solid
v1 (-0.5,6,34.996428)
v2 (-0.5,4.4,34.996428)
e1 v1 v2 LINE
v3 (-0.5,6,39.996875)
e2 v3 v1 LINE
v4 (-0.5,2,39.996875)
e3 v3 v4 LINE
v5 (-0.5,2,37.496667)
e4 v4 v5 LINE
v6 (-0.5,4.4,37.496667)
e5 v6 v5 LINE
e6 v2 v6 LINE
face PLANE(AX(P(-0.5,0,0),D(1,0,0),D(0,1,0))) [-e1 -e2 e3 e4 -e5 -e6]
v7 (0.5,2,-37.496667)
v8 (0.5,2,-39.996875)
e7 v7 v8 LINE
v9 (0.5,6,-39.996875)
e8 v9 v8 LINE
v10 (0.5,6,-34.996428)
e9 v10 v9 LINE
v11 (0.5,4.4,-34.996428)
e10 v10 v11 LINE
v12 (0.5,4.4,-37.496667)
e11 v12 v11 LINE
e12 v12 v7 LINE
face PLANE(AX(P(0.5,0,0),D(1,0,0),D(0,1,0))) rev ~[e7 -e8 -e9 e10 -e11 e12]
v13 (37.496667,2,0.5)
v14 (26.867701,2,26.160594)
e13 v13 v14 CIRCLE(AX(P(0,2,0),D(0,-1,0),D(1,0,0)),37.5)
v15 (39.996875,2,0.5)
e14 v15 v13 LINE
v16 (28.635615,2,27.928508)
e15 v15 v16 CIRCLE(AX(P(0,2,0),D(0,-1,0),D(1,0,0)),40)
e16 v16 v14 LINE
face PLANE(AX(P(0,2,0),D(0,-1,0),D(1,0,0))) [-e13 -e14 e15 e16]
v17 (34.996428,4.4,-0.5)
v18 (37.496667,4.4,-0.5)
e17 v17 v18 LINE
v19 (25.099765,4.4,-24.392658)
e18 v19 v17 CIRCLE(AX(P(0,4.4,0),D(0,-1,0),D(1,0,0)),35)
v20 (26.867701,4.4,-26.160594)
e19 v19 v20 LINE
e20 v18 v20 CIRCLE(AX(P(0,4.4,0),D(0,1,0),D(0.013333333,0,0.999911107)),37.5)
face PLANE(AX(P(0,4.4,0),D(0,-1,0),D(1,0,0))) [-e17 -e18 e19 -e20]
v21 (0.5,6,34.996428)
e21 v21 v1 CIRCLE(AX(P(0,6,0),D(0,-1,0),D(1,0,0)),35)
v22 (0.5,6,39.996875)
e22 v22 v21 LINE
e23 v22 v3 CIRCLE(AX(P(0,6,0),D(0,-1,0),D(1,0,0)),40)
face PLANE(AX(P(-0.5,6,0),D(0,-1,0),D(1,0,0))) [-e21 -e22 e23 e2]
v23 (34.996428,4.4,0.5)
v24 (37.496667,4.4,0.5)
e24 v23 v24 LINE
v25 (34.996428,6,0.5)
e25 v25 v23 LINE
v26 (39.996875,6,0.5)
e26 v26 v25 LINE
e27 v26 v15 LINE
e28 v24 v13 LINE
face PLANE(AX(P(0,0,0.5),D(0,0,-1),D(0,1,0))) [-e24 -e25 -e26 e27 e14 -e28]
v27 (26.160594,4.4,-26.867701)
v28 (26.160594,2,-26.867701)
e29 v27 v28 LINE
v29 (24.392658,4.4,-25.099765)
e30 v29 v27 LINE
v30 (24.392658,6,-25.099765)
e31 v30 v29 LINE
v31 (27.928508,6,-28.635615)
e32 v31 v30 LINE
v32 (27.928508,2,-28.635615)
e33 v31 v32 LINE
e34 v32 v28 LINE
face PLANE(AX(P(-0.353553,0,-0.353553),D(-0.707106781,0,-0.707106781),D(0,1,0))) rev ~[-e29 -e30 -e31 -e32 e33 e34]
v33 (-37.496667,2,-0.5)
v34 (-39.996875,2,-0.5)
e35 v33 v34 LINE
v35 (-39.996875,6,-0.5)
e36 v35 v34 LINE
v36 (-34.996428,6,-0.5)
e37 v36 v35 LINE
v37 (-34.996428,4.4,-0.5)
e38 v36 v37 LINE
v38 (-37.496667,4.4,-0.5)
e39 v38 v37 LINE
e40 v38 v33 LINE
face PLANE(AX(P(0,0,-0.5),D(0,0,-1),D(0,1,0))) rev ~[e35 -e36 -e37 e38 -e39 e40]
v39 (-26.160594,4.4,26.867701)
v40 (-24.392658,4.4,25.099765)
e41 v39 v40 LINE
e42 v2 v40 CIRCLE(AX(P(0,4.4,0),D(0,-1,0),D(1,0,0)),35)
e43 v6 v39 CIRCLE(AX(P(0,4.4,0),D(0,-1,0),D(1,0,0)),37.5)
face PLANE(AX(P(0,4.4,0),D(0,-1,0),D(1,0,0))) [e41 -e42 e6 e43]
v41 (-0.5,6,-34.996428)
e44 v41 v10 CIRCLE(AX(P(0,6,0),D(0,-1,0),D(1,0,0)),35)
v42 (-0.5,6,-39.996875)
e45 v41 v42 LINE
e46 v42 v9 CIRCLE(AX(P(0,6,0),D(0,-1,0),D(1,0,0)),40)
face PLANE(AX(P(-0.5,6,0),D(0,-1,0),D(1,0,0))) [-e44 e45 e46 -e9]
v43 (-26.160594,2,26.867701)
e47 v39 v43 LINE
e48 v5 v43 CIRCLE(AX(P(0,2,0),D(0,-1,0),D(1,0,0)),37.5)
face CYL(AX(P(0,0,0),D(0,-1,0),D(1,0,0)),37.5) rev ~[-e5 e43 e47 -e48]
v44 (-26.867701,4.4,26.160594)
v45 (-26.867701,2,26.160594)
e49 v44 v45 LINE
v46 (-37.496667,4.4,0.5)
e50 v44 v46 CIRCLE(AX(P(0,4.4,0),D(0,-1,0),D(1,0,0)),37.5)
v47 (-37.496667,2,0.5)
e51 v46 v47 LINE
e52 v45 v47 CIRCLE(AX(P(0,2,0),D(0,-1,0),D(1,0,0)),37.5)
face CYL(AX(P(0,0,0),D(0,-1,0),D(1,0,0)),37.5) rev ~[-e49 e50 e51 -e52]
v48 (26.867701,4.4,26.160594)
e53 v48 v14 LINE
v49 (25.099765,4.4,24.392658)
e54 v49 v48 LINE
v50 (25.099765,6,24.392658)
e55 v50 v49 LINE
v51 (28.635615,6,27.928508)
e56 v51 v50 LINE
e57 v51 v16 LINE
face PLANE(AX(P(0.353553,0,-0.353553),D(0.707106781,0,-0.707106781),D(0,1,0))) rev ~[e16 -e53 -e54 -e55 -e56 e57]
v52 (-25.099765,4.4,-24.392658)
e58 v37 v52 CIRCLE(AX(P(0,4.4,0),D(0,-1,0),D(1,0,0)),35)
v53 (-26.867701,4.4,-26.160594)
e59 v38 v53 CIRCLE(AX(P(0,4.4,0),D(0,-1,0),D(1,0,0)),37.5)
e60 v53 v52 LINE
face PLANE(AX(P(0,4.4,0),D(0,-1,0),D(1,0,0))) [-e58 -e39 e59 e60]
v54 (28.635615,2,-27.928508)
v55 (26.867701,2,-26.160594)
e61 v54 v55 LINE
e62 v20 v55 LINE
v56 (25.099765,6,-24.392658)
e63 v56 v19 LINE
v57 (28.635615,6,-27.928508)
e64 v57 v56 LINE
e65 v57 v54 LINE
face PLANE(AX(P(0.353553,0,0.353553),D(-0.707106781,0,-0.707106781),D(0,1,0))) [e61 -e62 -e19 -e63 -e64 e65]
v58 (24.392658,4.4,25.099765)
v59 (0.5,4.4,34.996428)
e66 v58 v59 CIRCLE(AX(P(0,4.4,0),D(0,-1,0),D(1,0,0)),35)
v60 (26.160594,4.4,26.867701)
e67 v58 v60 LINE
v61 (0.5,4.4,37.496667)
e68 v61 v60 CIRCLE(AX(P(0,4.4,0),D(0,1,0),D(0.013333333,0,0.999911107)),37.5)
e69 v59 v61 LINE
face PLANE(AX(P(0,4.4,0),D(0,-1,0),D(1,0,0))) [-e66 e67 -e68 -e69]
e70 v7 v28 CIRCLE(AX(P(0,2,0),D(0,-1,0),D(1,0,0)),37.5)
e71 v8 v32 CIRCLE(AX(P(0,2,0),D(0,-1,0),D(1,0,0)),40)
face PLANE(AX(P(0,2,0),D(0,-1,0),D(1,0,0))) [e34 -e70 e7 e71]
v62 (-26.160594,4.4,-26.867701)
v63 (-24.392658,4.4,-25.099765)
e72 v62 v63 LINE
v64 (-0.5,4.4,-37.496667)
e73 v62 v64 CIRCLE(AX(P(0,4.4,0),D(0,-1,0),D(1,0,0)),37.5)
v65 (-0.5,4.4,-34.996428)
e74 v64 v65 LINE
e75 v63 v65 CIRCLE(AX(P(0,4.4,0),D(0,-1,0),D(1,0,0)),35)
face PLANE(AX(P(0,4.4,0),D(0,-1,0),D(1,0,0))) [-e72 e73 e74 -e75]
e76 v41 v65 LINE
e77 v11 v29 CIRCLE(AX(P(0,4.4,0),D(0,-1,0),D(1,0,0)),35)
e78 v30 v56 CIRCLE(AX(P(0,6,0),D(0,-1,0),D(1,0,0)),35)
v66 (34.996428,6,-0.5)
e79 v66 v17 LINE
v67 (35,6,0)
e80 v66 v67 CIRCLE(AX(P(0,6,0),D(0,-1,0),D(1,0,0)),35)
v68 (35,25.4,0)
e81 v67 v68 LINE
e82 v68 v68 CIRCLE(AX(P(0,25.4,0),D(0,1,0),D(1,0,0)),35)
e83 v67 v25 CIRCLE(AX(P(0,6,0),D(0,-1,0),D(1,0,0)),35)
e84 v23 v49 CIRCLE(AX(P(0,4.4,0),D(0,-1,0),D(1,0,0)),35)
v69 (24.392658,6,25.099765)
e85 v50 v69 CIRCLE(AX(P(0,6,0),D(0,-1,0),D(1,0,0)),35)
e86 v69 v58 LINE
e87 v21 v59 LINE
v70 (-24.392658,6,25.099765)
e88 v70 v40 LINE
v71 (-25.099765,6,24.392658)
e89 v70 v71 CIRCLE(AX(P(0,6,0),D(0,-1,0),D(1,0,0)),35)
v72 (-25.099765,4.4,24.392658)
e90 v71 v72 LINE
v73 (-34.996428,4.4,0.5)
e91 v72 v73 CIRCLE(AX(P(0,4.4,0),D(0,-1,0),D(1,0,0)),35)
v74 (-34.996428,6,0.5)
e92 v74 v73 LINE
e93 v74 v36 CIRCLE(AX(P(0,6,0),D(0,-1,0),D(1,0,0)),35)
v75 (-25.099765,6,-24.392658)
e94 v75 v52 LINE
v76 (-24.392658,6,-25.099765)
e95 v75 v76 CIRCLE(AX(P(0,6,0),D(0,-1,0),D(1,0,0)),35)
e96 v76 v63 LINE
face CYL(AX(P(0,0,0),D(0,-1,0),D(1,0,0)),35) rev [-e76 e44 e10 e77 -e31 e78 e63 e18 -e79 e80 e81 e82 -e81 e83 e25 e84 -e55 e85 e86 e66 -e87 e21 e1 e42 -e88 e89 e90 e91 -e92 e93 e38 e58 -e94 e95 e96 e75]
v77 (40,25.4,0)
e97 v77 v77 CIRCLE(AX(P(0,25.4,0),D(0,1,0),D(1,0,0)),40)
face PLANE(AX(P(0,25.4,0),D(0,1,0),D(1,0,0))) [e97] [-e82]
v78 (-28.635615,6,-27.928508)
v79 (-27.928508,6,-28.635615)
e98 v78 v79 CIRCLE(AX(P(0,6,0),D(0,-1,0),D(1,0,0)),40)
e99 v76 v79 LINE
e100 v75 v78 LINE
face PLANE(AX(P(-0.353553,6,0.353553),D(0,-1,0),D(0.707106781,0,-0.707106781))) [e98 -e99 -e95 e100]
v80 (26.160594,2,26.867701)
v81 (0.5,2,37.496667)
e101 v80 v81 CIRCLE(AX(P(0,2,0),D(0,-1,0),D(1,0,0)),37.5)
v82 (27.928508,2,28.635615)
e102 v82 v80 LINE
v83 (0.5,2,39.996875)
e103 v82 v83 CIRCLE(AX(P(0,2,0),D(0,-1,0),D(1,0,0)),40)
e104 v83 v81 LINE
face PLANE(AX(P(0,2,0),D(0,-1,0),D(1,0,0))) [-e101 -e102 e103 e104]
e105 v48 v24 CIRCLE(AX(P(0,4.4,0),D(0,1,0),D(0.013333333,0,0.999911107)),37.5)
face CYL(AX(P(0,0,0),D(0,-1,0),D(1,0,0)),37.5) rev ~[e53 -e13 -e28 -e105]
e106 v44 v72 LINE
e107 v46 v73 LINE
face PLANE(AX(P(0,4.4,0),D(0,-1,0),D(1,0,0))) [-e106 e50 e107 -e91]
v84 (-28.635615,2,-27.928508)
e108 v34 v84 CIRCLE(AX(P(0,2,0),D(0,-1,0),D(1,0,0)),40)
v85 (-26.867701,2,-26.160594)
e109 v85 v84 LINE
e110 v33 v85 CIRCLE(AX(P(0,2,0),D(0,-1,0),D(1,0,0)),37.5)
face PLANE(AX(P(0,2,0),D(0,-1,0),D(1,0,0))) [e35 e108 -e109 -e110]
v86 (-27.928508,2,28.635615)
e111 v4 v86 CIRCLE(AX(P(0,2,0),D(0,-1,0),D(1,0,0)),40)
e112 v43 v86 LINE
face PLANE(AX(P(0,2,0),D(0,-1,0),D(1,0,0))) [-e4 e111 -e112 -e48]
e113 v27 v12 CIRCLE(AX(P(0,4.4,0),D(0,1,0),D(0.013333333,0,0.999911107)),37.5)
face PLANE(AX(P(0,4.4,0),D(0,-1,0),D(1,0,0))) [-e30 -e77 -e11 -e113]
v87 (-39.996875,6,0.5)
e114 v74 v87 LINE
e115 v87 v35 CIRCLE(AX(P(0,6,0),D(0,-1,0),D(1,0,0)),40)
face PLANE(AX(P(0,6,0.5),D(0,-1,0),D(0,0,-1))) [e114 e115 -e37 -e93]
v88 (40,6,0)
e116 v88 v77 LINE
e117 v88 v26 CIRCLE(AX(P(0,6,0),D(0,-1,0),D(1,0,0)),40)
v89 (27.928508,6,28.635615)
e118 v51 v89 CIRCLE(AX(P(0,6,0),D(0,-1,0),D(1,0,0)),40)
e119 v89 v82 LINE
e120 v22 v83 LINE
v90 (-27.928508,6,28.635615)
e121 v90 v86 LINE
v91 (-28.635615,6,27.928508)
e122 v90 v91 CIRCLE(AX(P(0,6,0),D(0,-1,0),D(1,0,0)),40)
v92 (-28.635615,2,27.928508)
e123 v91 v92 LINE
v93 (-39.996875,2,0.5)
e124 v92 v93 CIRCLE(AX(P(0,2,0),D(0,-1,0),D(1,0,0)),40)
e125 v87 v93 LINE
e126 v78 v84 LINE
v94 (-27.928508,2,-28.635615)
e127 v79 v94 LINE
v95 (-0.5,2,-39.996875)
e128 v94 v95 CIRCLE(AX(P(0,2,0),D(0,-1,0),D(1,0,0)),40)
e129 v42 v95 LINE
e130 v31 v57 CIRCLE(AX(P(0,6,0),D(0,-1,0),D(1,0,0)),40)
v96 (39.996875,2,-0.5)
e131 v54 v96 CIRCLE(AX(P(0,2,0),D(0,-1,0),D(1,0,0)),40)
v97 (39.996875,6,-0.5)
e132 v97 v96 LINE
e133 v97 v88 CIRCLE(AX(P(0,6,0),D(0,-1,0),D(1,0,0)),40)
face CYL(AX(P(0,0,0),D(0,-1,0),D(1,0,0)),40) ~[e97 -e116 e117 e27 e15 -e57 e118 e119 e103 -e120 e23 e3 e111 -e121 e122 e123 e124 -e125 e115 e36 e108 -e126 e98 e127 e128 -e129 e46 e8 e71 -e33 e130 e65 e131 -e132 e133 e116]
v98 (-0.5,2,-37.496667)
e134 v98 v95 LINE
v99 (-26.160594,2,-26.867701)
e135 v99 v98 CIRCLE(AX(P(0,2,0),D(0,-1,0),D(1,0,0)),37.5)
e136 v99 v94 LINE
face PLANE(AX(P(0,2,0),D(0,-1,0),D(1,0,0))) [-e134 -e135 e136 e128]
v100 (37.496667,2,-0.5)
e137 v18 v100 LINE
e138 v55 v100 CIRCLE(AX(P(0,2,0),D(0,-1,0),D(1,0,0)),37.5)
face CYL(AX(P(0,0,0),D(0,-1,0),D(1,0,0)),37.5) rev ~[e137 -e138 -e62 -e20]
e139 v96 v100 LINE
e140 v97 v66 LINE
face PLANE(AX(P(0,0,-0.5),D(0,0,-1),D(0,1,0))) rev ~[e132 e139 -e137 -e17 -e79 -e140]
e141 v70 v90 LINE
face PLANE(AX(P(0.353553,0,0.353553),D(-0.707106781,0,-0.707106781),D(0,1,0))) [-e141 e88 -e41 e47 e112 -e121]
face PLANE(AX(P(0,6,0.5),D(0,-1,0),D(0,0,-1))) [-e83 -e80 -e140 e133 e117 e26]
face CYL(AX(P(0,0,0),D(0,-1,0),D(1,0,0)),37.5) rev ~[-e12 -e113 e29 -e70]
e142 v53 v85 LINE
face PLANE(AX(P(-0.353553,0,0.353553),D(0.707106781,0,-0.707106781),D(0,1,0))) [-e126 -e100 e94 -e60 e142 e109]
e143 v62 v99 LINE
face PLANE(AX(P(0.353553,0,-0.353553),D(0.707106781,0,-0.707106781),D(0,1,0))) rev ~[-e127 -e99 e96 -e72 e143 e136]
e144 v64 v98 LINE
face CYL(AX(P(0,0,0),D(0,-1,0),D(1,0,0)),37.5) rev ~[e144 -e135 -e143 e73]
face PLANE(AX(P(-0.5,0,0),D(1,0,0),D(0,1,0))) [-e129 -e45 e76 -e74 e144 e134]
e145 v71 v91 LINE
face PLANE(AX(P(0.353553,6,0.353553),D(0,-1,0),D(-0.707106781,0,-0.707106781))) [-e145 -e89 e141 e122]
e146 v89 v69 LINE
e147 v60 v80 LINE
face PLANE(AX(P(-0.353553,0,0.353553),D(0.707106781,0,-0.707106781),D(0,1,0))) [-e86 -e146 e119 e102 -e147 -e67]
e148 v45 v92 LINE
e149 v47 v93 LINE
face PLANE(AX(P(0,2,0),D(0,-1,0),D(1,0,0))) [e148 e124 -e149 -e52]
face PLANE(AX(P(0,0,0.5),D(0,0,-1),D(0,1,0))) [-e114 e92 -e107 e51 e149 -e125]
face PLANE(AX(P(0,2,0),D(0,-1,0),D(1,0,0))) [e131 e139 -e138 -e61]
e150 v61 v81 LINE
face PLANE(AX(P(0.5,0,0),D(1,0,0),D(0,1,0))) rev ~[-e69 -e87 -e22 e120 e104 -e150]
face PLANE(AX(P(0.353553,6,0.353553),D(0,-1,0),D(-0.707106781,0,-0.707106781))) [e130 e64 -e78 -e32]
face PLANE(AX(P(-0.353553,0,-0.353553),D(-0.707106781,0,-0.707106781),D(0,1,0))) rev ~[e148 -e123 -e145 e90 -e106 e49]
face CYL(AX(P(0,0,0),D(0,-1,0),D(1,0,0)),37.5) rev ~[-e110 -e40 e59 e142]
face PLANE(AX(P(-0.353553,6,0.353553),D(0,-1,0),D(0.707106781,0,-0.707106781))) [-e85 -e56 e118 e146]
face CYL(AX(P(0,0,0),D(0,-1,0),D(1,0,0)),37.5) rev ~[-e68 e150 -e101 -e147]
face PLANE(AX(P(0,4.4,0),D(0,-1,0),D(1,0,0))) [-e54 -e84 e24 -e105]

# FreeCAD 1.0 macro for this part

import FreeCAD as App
import Part
import Sketcher
from FreeCAD import Vector
Q = App.Units.Quantity

doc = App.newDocument("Part")
body = doc.addObject("PartDesign::Body", "Body")

sketch1 = doc.addObject("Sketcher::SketchObject", "Sketch")
body.addObject(sketch1)
sketch1.AttachmentSupport = (doc.XZ_Plane, [""])
sketch1.MapMode = "FlatFace"
sketch1.addGeometry([
    Part.Circle(Vector(0, 0, 0), Vector(0, 0, 1), 40),
    Part.Circle(Vector(0, 0, 0), Vector(0, 0, 1), 35),
], False)
sketch1.addConstraint([
    Sketcher.Constraint("Coincident", 0, 3, -1, 1),
    Sketcher.Constraint("Coincident", 1, 3, -1, 1),
    Sketcher.Constraint("Diameter", 0, Q("80 mm")),
    Sketcher.Constraint("Diameter", 1, Q("70 mm")),
])
pad1 = doc.addObject("PartDesign::Pad", "Pad")
body.addObject(pad1)
pad1.Profile = sketch1
pad1.Length = 25.4
pad1.Reversed = True

sketch2 = doc.addObject("Sketcher::SketchObject", "Sketch001")
body.addObject(sketch2)
sketch2.AttachmentSupport = (doc.XZ_Plane, [""])
sketch2.MapMode = "FlatFace"
sketch2.addGeometry([
    Part.Circle(Vector(0, 0, 0), Vector(0, 0, 1), 38),
    Part.Circle(Vector(0, 0, 0), Vector(0, 0, 1), 35),
], False)
sketch2.addConstraint([
    Sketcher.Constraint("Coincident", 0, 3, -1, 1),
    Sketcher.Constraint("Coincident", 1, 3, -1, 1),
    Sketcher.Constraint("Diameter", 0, Q("75 mm")),
    Sketcher.Constraint("Diameter", 1, Q("70 mm")),
])
pocket1 = doc.addObject("PartDesign::Pocket", "Pocket")
body.addObject(pocket1)
pocket1.Profile = sketch2
pocket1.Length = 4.4

sketch3 = doc.addObject("Sketcher::SketchObject", "Sketch002")
body.addObject(sketch3)
sketch3.AttachmentSupport = (doc.XY_Plane, [""])
sketch3.MapMode = "FlatFace"
sketch3.addGeometry([
    Part.LineSegment(Vector(-0.5, 6, 0), Vector(-0.5, 0, 0)),
    Part.LineSegment(Vector(-0.5, 0, 0), Vector(0.5, 0, 0)),
    Part.LineSegment(Vector(0.5, 0, 0), Vector(0.5, 6, 0)),
    Part.LineSegment(Vector(0.5, 6, 0), Vector(-0.5, 6, 0)),
], False)
sketch3.addConstraint([
    Sketcher.Constraint("Coincident", 0, 2, 1, 1),
    Sketcher.Constraint("Coincident", 1, 2, 2, 1),
    Sketcher.Constraint("Coincident", 2, 2, 3, 1),
    Sketcher.Constraint("Coincident", 3, 2, 0, 1),
    Sketcher.Constraint("Vertical", 0),
    Sketcher.Constraint("Horizontal", 1),
    Sketcher.Constraint("Vertical", 2),
    Sketcher.Constraint("Horizontal", 3),
    Sketcher.Constraint("Symmetric", 0, 2, 1, 2, -1, 1),
    Sketcher.Constraint("DistanceX", 1, 1, 1, 2, Q("1 mm")),
    Sketcher.Constraint("DistanceY", 0, 2, 0, 1, Q("6 mm")),
])
pocket2 = doc.addObject("PartDesign::Pocket", "Pocket001")
body.addObject(pocket2)
pocket2.Profile = sketch3
pocket2.Length = 82
pocket2.Midplane = True
doc.recompute()

polarpattern = doc.addObject("PartDesign::PolarPattern", "PolarPattern")
body.addObject(polarpattern)
polarpattern.Originals = [pocket2]
polarpattern.Axis = (doc.Y_Axis, [""])
polarpattern.Angle = 135
polarpattern.Occurrences = 4
body.Tip = polarpattern

sketch4 = doc.addObject("Sketcher::SketchObject", "Sketch003")
body.addObject(sketch4)
sketch4.AttachmentSupport = (doc.XZ_Plane, [""])
sketch4.MapMode = "FlatFace"
sketch4.addGeometry(Part.Circle(Vector(0, 0, 0), Vector(0, 0, 1), 46), False)
sketch4.addConstraint([
    Sketcher.Constraint("Coincident", 0, 3, -1, 1),
    Sketcher.Constraint("Diameter", 0, Q("91.755151 mm")),
])
pocket3 = doc.addObject("PartDesign::Pocket", "Pocket002")
body.addObject(pocket3)
pocket3.Profile = sketch4
pocket3.Length = 2

doc.recompute()
